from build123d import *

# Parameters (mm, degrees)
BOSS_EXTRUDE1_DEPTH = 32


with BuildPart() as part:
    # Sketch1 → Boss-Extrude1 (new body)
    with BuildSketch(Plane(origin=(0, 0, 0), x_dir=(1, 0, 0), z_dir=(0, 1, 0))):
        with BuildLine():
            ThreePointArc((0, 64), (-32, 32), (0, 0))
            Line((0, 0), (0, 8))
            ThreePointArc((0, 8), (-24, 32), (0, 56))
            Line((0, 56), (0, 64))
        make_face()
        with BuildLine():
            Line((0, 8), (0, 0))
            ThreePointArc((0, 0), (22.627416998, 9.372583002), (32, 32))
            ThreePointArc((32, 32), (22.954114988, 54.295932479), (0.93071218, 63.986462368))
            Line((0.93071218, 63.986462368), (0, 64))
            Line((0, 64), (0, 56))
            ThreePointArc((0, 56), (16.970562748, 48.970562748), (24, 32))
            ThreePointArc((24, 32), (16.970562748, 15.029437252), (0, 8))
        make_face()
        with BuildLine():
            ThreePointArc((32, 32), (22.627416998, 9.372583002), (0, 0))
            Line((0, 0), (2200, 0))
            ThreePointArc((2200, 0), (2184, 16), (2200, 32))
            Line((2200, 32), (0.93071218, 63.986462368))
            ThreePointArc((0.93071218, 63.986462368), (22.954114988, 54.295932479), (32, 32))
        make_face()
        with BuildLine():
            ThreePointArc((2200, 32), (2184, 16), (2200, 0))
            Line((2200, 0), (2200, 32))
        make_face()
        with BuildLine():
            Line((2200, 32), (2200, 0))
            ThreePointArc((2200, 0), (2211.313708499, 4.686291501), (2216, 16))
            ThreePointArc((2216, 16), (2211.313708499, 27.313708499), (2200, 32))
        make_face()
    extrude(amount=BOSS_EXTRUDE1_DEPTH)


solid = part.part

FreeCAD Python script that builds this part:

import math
import FreeCAD as App
import Part
import Sketcher

V = App.Vector

doc = App.newDocument("Part")
params = doc.addObject("Spreadsheet::Sheet", "Params")
for row, (alias, value) in enumerate([
    ("sketch1_radius", "32 mm"),
    ("sketch1_radius2", "24 mm"),
    ("sketch1_width", "2200 mm"),
    ("pad1_length", "32 mm"),
], start=1):
    params.set(f"A{row}", alias)
    params.set(f"B{row}", "=" + value)
    params.setAlias(f"B{row}", alias)

body = doc.addObject("PartDesign::Body", "Body")

sketch1 = doc.addObject("Sketcher::SketchObject", "Sketch")
body.addObject(sketch1)
sketch1.AttachmentSupport = (doc.XZ_Plane, [""])
sketch1.MapMode = "FlatFace"
sketch1.addGeometry(Part.LineSegment(V(2200, -32, 0), V(0.930712, -63.986462, 0)), False)
sketch1.addGeometry(Part.LineSegment(V(0.930712, -63.986462, 0), V(0, -64, 0)), False)
sketch1.addGeometry(Part.ArcOfCircle(Part.Circle(V(0, -32, 0), V(0, 0, 1), 32), math.radians(90), math.radians(270)), False)
sketch1.addGeometry(Part.LineSegment(V(0, 0, 0), V(2200, 0, 0)), False)
sketch1.addGeometry(Part.ArcOfCircle(Part.Circle(V(2200, -16, 0), V(0, 0, 1), 16), math.radians(0), math.radians(90)), False)
sketch1.addGeometry(Part.ArcOfCircle(Part.Circle(V(2200, -16, 0), V(0, 0, 1), 16), math.radians(-90), math.radians(0)), False)
sketch1.addGeometry(Part.ArcOfCircle(Part.Circle(V(0, -32, 0), V(0, 0, 1), 24), math.radians(90), math.radians(270)), False)
sketch1.addGeometry(Part.ArcOfCircle(Part.Circle(V(0, -32, 0), V(0, 0, 1), 24), math.radians(-90), math.radians(0)), False)
sketch1.addGeometry(Part.ArcOfCircle(Part.Circle(V(0, -32, 0), V(0, 0, 1), 24), math.radians(0), math.radians(90)), False)
sketch1.addConstraint(Sketcher.Constraint("Coincident", 0, 2, 1, 1))
sketch1.addConstraint(Sketcher.Constraint("Coincident", 1, 2, 2, 2))
sketch1.addConstraint(Sketcher.Constraint("Tangent", 2, 1, 3, 1))
sketch1.addConstraint(Sketcher.Constraint("Tangent", 3, 2, 4, 2))
sketch1.addConstraint(Sketcher.Constraint("Tangent", 4, 1, 5, 2))
sketch1.addConstraint(Sketcher.Constraint("Coincident", 5, 1, 0, 1))
sketch1.addConstraint(Sketcher.Constraint("Tangent", 6, 2, 7, 1))
sketch1.addConstraint(Sketcher.Constraint("Tangent", 7, 2, 8, 1))
sketch1.addConstraint(Sketcher.Constraint("Tangent", 8, 2, 6, 1))
sketch1.addConstraint(Sketcher.Constraint("Horizontal", 3))
sketch1.addConstraint(Sketcher.Constraint("Coincident", 2, 1, -1, 1))
sketch1.addConstraint(Sketcher.Constraint("Coincident", 6, 3, 2, 3))
sketch1.addConstraint(Sketcher.Constraint("Equal", 4, 5))
sketch1.addConstraint(Sketcher.Constraint("PointOnObject", 1, 2, -2))
sketch1.addConstraint(Sketcher.Constraint("PointOnObject", 6, 2, -2))
sketch1.addConstraint(Sketcher.Constraint("PointOnObject", 8, 2, -2))
sketch1.addConstraint(Sketcher.Constraint("Parallel", 0, 1))
sketch1.addConstraint(Sketcher.Constraint("Horizontal", 5, 3, 4, 1))
sketch1.addConstraint(Sketcher.Constraint("Horizontal", 8, 3, 5, 1))
sketch1.addConstraint(Sketcher.Constraint("Horizontal", 5, 1, 7, 2))
sketch1.addConstraint(Sketcher.Constraint("Vertical", 3, 2, 5, 1))
sketch1.addConstraint(Sketcher.Constraint("Radius", 2, 32.0))
sketch1.addConstraint(Sketcher.Constraint("Radius", 6, 24.0))
sketch1.addConstraint(Sketcher.Constraint("DistanceX", 3, 1, 3, 2, 2200.0))
sketch1.addConstraint(Sketcher.Constraint("Distance", 1, 0.930811))
sketch1.setExpression("Constraints[21]", "Params.sketch1_radius")
sketch1.setExpression("Constraints[22]", "Params.sketch1_radius2")
sketch1.setExpression("Constraints[23]", "Params.sketch1_width")
pad1 = doc.addObject("PartDesign::Pad", "Pad")
body.addObject(pad1)
pad1.Profile = sketch1
pad1.setExpression("Length", "Params.pad1_length")
pad1.Reversed = True

doc.recompute()
